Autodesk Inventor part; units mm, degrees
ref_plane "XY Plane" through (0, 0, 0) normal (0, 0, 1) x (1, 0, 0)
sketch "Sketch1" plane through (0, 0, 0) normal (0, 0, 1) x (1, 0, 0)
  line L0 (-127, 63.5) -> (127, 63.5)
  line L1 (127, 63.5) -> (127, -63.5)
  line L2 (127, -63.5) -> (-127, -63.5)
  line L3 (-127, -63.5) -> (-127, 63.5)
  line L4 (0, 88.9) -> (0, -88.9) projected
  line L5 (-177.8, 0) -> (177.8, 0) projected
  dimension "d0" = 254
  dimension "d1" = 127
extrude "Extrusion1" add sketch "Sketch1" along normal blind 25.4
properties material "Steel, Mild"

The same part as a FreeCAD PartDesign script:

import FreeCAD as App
import Part
import Sketcher

V = App.Vector
Q = App.Units.Quantity


def add_polygon(sketch, points):
    """Adds a closed chain of lines whose ends are joined by coincident constraints."""
    first, n = sketch.GeometryCount, len(points)
    for a, b in zip(points, points[1:] + points[:1]):
        sketch.addGeometry(Part.LineSegment(App.Vector(*a, 0), App.Vector(*b, 0)), False)
    for i in range(n):
        sketch.addConstraint(Sketcher.Constraint("Coincident", first + i, 2, first + (i + 1) % n, 1))

doc = App.newDocument("Part")
body = doc.addObject("PartDesign::Body", "Body")

sketch1 = body.newObject("Sketcher::SketchObject", "Sketch")
sketch1.AttachmentSupport = (doc.getObject("XY_Plane"), [""])
sketch1.MapMode = "FlatFace"
add_polygon(sketch1, [(-127, 63.5), (-127, -63.5), (127, -63.5), (127, 63.5)])
sketch1.addConstraint([
    Sketcher.Constraint("Vertical", 0),
    Sketcher.Constraint("Horizontal", 1),
    Sketcher.Constraint("Vertical", 2),
    Sketcher.Constraint("Horizontal", 3),
    Sketcher.Constraint("Symmetric", 0, 2, 2, 2, -1, 1),
    Sketcher.Constraint("DistanceX", 1, 1, 1, 2, Q("10 in")),
    Sketcher.Constraint("DistanceY", 0, 2, 0, 1, Q("5 in")),
])
pad1 = body.newObject("PartDesign::Pad", "Pad")
pad1.Profile = sketch1
pad1.Length = Q("1 in")

doc.recompute()
